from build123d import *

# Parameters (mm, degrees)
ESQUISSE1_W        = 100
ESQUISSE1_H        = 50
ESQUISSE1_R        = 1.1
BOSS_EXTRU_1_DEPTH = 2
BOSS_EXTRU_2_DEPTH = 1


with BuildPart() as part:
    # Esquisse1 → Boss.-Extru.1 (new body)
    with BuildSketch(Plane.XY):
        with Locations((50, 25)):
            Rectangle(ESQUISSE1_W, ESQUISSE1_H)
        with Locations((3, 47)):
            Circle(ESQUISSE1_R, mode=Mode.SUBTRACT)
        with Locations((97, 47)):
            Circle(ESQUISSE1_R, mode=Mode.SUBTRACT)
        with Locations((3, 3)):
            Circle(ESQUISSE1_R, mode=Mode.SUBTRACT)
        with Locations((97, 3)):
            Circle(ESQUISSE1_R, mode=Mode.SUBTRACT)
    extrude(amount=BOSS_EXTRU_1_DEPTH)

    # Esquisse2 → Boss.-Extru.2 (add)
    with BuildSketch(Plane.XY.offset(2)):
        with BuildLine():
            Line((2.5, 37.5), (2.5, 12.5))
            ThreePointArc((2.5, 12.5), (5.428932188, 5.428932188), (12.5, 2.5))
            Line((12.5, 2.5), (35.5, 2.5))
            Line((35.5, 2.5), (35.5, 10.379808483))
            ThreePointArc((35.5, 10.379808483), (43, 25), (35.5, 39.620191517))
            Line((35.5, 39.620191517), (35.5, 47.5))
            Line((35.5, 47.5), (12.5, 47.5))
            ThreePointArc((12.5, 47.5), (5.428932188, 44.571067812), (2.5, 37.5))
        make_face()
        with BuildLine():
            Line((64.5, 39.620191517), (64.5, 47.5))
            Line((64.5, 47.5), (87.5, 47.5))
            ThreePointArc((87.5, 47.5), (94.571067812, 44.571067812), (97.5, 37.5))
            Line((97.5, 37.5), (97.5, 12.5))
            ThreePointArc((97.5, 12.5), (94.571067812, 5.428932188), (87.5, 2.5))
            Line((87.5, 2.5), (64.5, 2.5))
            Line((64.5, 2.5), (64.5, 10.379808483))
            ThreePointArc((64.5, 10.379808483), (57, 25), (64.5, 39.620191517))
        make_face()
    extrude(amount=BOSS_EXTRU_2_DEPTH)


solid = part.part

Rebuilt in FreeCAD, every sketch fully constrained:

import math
import FreeCAD as App
import Part
import Sketcher
Q = App.Units.Quantity

doc = App.newDocument("Part")
body = doc.addObject("PartDesign::Body", "Body")

# Sketch on XY plane
sketch1 = body.newObject("Sketcher::SketchObject", "Sketch")
sketch1.AttachmentSupport = (doc.getObject("XY_Plane"), [""])
sketch1.MapMode = "FlatFace"
sketch1.addGeometry(Part.LineSegment(App.Vector(0, 50, 0), App.Vector(0, 0, 0)), False)
sketch1.addGeometry(Part.LineSegment(App.Vector(0, 0, 0), App.Vector(100, 0, 0)), False)
sketch1.addGeometry(Part.LineSegment(App.Vector(100, 0, 0), App.Vector(100, 50, 0)), False)
sketch1.addGeometry(Part.LineSegment(App.Vector(100, 50, 0), App.Vector(0, 50, 0)), False)
sketch1.addGeometry(Part.Circle(App.Vector(3, 3, 0), App.Vector(0, 0, 1), 1.1), False)
sketch1.addGeometry(Part.Circle(App.Vector(97, 3, 0), App.Vector(0, 0, 1), 1.1), False)
sketch1.addGeometry(Part.Circle(App.Vector(3, 47, 0), App.Vector(0, 0, 1), 1.1), False)
sketch1.addGeometry(Part.Circle(App.Vector(97, 47, 0), App.Vector(0, 0, 1), 1.1), False)
sketch1.addConstraint(Sketcher.Constraint("Coincident", 0, 2, 1, 1))
sketch1.addConstraint(Sketcher.Constraint("Coincident", 1, 2, 2, 1))
sketch1.addConstraint(Sketcher.Constraint("Coincident", 2, 2, 3, 1))
sketch1.addConstraint(Sketcher.Constraint("Coincident", 3, 2, 0, 1))
sketch1.addConstraint(Sketcher.Constraint("Vertical", 0))
sketch1.addConstraint(Sketcher.Constraint("Horizontal", 1))
sketch1.addConstraint(Sketcher.Constraint("Vertical", 2))
sketch1.addConstraint(Sketcher.Constraint("Horizontal", 3))
sketch1.addConstraint(Sketcher.Constraint("Coincident", 0, 2, -1, 1))
sketch1.addConstraint(Sketcher.Constraint("Equal", 4, 5))
sketch1.addConstraint(Sketcher.Constraint("Equal", 5, 6))
sketch1.addConstraint(Sketcher.Constraint("Equal", 6, 7))
sketch1.addConstraint(Sketcher.Constraint("Horizontal", 4, 3, 5, 3))
sketch1.addConstraint(Sketcher.Constraint("Horizontal", 6, 3, 7, 3))
sketch1.addConstraint(Sketcher.Constraint("Vertical", 4, 3, 6, 3))
sketch1.addConstraint(Sketcher.Constraint("Vertical", 5, 3, 7, 3))
sketch1.addConstraint(Sketcher.Constraint("Diameter", 4, Q("2.2 mm")))
sketch1.addConstraint(Sketcher.Constraint("DistanceX", 1, 1, 1, 2, Q("100 mm")))
sketch1.addConstraint(Sketcher.Constraint("DistanceY", 0, 2, 0, 1, Q("50 mm")))
sketch1.addConstraint(Sketcher.Constraint("DistanceX", -1, 1, 4, 3, Q("3 mm")))
sketch1.addConstraint(Sketcher.Constraint("DistanceY", -1, 1, 4, 3, Q("3 mm")))
sketch1.addConstraint(Sketcher.Constraint("DistanceX", -1, 1, 5, 3, Q("97 mm")))
sketch1.addConstraint(Sketcher.Constraint("DistanceY", -1, 1, 6, 3, Q("47 mm")))
pad1 = body.newObject("PartDesign::Pad", "Pad")
pad1.Profile = sketch1
pad1.Length = 2

# Sketch on XY plane
sketch2 = body.newObject("Sketcher::SketchObject", "Sketch001")
sketch2.AttachmentSupport = (doc.getObject("XY_Plane"), [""])
sketch2.MapMode = "FlatFace"
sketch2.AttachmentOffset = App.Placement(App.Vector(0, 0, 2), App.Rotation())
sketch2.addGeometry(Part.LineSegment(App.Vector(2, 38, 0), App.Vector(2, 12, 0)), False)
sketch2.addGeometry(Part.ArcOfCircle(Part.Circle(App.Vector(12, 12, 0), App.Vector(0, 0, 1), 10), math.radians(180), math.radians(270)), False)
sketch2.addGeometry(Part.LineSegment(App.Vector(12, 2, 0), App.Vector(36, 2, 0)), False)
sketch2.addGeometry(Part.LineSegment(App.Vector(36, 2, 0), App.Vector(36, 10, 0)), False)
sketch2.addGeometry(Part.ArcOfCircle(Part.Circle(App.Vector(25, 25, 0), App.Vector(0, 0, 1), 18), math.radians(-54), math.radians(54)), False)
sketch2.addGeometry(Part.LineSegment(App.Vector(36, 40, 0), App.Vector(36, 48, 0)), False)
sketch2.addGeometry(Part.LineSegment(App.Vector(36, 48, 0), App.Vector(12, 48, 0)), False)
sketch2.addGeometry(Part.ArcOfCircle(Part.Circle(App.Vector(12, 38, 0), App.Vector(0, 0, 1), 10), math.radians(90), math.radians(180)), False)
sketch2.addGeometry(Part.LineSegment(App.Vector(64, 48, 0), App.Vector(64, 40, 0)), False)
sketch2.addGeometry(Part.ArcOfCircle(Part.Circle(App.Vector(75, 25, 0), App.Vector(0, 0, 1), 18), math.radians(126), math.radians(234)), False)
sketch2.addGeometry(Part.LineSegment(App.Vector(64, 10, 0), App.Vector(64, 2, 0)), False)
sketch2.addGeometry(Part.LineSegment(App.Vector(64, 2, 0), App.Vector(88, 2, 0)), False)
sketch2.addGeometry(Part.ArcOfCircle(Part.Circle(App.Vector(88, 12, 0), App.Vector(0, 0, 1), 10), math.radians(-90), math.radians(0)), False)
sketch2.addGeometry(Part.LineSegment(App.Vector(98, 12, 0), App.Vector(98, 38, 0)), False)
sketch2.addGeometry(Part.ArcOfCircle(Part.Circle(App.Vector(88, 38, 0), App.Vector(0, 0, 1), 10), math.radians(0), math.radians(90)), False)
sketch2.addGeometry(Part.LineSegment(App.Vector(88, 48, 0), App.Vector(64, 48, 0)), False)
sketch2.addConstraint(Sketcher.Constraint("Tangent", 0, 2, 1, 1))
sketch2.addConstraint(Sketcher.Constraint("Tangent", 1, 2, 2, 1))
sketch2.addConstraint(Sketcher.Constraint("Coincident", 2, 2, 3, 1))
sketch2.addConstraint(Sketcher.Constraint("Coincident", 3, 2, 4, 1))
sketch2.addConstraint(Sketcher.Constraint("Coincident", 4, 2, 5, 1))
sketch2.addConstraint(Sketcher.Constraint("Coincident", 5, 2, 6, 1))
sketch2.addConstraint(Sketcher.Constraint("Tangent", 6, 2, 7, 1))
sketch2.addConstraint(Sketcher.Constraint("Tangent", 7, 2, 0, 1))
sketch2.addConstraint(Sketcher.Constraint("Coincident", 8, 2, 9, 1))
sketch2.addConstraint(Sketcher.Constraint("Coincident", 9, 2, 10, 1))
sketch2.addConstraint(Sketcher.Constraint("Coincident", 10, 2, 11, 1))
sketch2.addConstraint(Sketcher.Constraint("Tangent", 11, 2, 12, 1))
sketch2.addConstraint(Sketcher.Constraint("Tangent", 12, 2, 13, 1))
sketch2.addConstraint(Sketcher.Constraint("Tangent", 13, 2, 14, 1))
sketch2.addConstraint(Sketcher.Constraint("Tangent", 14, 2, 15, 1))
sketch2.addConstraint(Sketcher.Constraint("Coincident", 15, 2, 8, 1))
sketch2.addConstraint(Sketcher.Constraint("Vertical", 0))
sketch2.addConstraint(Sketcher.Constraint("Horizontal", 2))
sketch2.addConstraint(Sketcher.Constraint("Vertical", 3))
sketch2.addConstraint(Sketcher.Constraint("Vertical", 5))
sketch2.addConstraint(Sketcher.Constraint("Horizontal", 6))
sketch2.addConstraint(Sketcher.Constraint("Vertical", 8))
sketch2.addConstraint(Sketcher.Constraint("Vertical", 10))
sketch2.addConstraint(Sketcher.Constraint("Horizontal", 11))
sketch2.addConstraint(Sketcher.Constraint("Vertical", 13))
sketch2.addConstraint(Sketcher.Constraint("Horizontal", 15))
sketch2.addConstraint(Sketcher.Constraint("Equal", 1, 7))
sketch2.addConstraint(Sketcher.Constraint("Equal", 4, 9))
sketch2.addConstraint(Sketcher.Constraint("Equal", 7, 12))
sketch2.addConstraint(Sketcher.Constraint("Equal", 12, 14))
sketch2.addConstraint(Sketcher.Constraint("Horizontal", 4, 3, 9, 3))
sketch2.addConstraint(Sketcher.Constraint("Horizontal", 1, 3, 12, 3))
sketch2.addConstraint(Sketcher.Constraint("Horizontal", 7, 3, 14, 3))
sketch2.addConstraint(Sketcher.Constraint("Horizontal", 4, 2, 8, 2))
sketch2.addConstraint(Sketcher.Constraint("Horizontal", 3, 2, 9, 2))
sketch2.addConstraint(Sketcher.Constraint("Vertical", 3, 2, 4, 2))
sketch2.addConstraint(Sketcher.Constraint("Equal", 6, 11))
sketch2.addConstraint(Sketcher.Constraint("Equal", 3, 5))
sketch2.addConstraint(Sketcher.Constraint("Radius", 1, Q("10 mm")))
sketch2.addConstraint(Sketcher.Constraint("Radius", 4, Q("18 mm")))
sketch2.addConstraint(Sketcher.Constraint("DistanceX", 2, 1, 2, 2, Q("23 mm")))
sketch2.addConstraint(Sketcher.Constraint("DistanceY", 0, 2, 0, 1, Q("25 mm")))
sketch2.addConstraint(Sketcher.Constraint("DistanceX", -1, 1, 4, 3, Q("25 mm")))
sketch2.addConstraint(Sketcher.Constraint("DistanceY", -1, 1, 4, 3, Q("25 mm")))
sketch2.addConstraint(Sketcher.Constraint("DistanceX", -1, 1, 9, 3, Q("75 mm")))
sketch2.addConstraint(Sketcher.Constraint("DistanceX", 1, 3, 12, 3, Q("75 mm")))
pad2 = body.newObject("PartDesign::Pad", "Pad001")
pad2.Profile = sketch2
pad2.Length = 1

doc.recompute()
